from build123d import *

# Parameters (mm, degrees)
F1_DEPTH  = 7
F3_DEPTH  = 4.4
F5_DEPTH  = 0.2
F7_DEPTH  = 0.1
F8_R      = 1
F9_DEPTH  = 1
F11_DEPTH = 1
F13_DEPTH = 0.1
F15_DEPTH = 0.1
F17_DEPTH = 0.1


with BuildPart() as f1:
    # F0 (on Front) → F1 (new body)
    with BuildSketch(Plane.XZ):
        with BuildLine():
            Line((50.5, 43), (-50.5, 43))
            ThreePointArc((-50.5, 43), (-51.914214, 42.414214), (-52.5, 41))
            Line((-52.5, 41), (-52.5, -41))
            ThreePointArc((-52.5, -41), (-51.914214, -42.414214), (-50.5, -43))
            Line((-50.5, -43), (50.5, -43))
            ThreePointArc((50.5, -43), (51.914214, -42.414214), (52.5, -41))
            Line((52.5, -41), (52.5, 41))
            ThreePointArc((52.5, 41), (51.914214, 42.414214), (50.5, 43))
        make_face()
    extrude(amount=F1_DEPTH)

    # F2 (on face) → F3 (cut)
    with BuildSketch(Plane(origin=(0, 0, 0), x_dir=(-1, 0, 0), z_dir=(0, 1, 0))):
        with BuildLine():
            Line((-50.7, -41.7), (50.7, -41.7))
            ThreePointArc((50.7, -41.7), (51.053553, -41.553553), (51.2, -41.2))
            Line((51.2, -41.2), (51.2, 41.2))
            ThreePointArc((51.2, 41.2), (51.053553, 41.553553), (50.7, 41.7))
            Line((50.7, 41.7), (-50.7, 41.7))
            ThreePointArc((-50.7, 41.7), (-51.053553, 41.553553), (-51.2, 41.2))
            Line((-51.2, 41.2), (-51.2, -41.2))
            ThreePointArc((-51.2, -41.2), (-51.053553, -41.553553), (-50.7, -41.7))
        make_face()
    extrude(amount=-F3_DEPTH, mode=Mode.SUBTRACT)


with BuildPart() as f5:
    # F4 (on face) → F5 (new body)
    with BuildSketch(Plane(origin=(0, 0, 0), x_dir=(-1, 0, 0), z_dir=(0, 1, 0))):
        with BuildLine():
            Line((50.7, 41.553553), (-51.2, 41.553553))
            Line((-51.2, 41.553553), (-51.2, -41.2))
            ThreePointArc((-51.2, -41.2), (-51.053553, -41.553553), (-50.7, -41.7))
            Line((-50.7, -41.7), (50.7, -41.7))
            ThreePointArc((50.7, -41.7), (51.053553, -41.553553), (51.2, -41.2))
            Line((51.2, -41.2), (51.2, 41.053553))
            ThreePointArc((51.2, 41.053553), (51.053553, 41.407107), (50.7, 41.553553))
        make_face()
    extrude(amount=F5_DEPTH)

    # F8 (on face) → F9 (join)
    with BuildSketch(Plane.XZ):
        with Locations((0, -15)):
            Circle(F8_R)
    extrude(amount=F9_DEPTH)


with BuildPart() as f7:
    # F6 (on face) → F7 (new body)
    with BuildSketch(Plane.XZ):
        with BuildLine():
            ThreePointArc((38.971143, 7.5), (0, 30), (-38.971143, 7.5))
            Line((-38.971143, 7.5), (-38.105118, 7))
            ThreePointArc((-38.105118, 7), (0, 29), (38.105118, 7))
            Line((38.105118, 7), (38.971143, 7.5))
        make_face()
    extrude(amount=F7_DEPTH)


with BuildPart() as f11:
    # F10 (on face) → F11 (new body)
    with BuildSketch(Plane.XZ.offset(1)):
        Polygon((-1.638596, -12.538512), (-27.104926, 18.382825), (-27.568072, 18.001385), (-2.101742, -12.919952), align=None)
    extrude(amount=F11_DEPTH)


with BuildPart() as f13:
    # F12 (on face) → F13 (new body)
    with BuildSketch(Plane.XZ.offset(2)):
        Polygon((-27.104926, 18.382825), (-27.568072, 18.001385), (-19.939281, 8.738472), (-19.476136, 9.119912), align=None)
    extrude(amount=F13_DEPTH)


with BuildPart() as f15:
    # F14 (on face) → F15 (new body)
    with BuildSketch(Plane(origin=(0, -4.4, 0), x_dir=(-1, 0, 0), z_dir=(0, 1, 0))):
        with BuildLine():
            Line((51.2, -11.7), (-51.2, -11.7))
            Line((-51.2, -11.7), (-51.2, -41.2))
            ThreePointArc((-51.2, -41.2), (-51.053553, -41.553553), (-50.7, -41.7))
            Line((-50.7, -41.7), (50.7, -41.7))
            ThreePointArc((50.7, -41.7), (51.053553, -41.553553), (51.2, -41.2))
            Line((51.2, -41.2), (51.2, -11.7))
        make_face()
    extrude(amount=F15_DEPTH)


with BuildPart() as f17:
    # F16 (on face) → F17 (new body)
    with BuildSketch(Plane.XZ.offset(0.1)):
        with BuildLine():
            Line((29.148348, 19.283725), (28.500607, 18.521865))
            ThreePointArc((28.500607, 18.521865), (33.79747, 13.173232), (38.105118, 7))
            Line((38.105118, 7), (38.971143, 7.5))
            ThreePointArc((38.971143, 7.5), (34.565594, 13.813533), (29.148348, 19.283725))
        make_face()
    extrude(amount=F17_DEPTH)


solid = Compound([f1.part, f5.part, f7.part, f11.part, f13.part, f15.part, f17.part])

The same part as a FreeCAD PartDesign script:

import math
import FreeCAD as App
import Part
import Sketcher

V = App.Vector
Q = App.Units.Quantity

doc = App.newDocument("Part")
params = doc.addObject("Spreadsheet::Sheet", "Params")
for row, (alias, value) in enumerate([
    ("sketch1_radius", "1.999999 mm"),
    ("sketch1_width", "101 mm"),
    ("sketch1_height", "82 mm"),
    ("pad1_length", "7 mm"),
    ("sketch2_radius", "0.500001 mm"),
    ("sketch2_width", "101.4 mm"),
    ("sketch2_height", "82.4 mm"),
    ("pocket1_length", "4.4 mm"),
    ("sketch3_radius", "0.500001 mm"),
    ("sketch3_width", "101.9 mm"),
    ("sketch3_width2", "101.4 mm"),
    ("pad2_length", "0.2 mm"),
    ("sketch4_diameter", "2 mm"),
    ("pad3_length", "1 mm"),
    ("sketch5_radius", "45 mm"),
    ("sketch5_radius2", "44 mm"),
    ("pad4_length", "0.1 mm"),
    ("sketch6_length", "0.600001 mm"),
    ("pad5_length", "1 mm"),
    ("sketch7_length", "12 mm"),
    ("sketch7_length2", "0.600001 mm"),
    ("pad6_length", "0.1 mm"),
    ("sketch8_radius", "0.500001 mm"),
    ("sketch8_width", "102.4 mm"),
    ("sketch8_width2", "101.4 mm"),
    ("sketch8_height", "29.5 mm"),
    ("pad7_length", "0.1 mm"),
    ("sketch9_length", "1 mm"),
    ("pad8_length", "0.1 mm"),
], start=1):
    params.set(f"A{row}", alias)
    params.set(f"B{row}", "=" + value)
    params.setAlias(f"B{row}", alias)

body = doc.addObject("PartDesign::Body", "Body")

# Sketch on XZ plane
sketch1 = body.newObject("Sketcher::SketchObject", "Sketch")
sketch1.AttachmentSupport = (doc.getObject("XZ_Plane"), [""])
sketch1.MapMode = "FlatFace"
sketch1.addGeometry([
    Part.LineSegment(V(50.5, 43, 0), V(-50.5, 43, 0)),  # 0
    Part.ArcOfCircle(Part.Circle(V(-50.5, 41, 0), V(0, 0, 1), 2), math.radians(90), math.radians(180)),  # 1
    Part.LineSegment(V(-52.5, 41, 0), V(-52.5, -41, 0)),  # 2
    Part.ArcOfCircle(Part.Circle(V(-50.5, -41, 0), V(0, 0, 1), 2), math.radians(180), math.radians(270)),  # 3
    Part.LineSegment(V(-50.5, -43, 0), V(50.5, -43, 0)),  # 4
    Part.ArcOfCircle(Part.Circle(V(50.5, -41, 0), V(0, 0, 1), 2), math.radians(-90), math.radians(0)),  # 5
    Part.LineSegment(V(52.5, -41, 0), V(52.5, 41, 0)),  # 6
    Part.ArcOfCircle(Part.Circle(V(50.5, 41, 0), V(0, 0, 1), 2), math.radians(0), math.radians(90)),  # 7
], False)
sketch1.addConstraint([
    Sketcher.Constraint("Tangent", 0, 2, 1, 1),
    Sketcher.Constraint("Tangent", 1, 2, 2, 1),
    Sketcher.Constraint("Tangent", 2, 2, 3, 1),
    Sketcher.Constraint("Tangent", 3, 2, 4, 1),
    Sketcher.Constraint("Tangent", 4, 2, 5, 1),
    Sketcher.Constraint("Tangent", 5, 2, 6, 1),
    Sketcher.Constraint("Tangent", 6, 2, 7, 1),
    Sketcher.Constraint("Tangent", 7, 2, 0, 1),
    Sketcher.Constraint("Horizontal", 0),
    Sketcher.Constraint("Vertical", 2),
    Sketcher.Constraint("Horizontal", 4),
    Sketcher.Constraint("Vertical", 6),
    Sketcher.Constraint("Equal", 1, 3),
    Sketcher.Constraint("Equal", 3, 5),
    Sketcher.Constraint("Equal", 5, 7),
    Sketcher.Constraint("Symmetric", 1, 3, 5, 3, -1, 1),
    Sketcher.Constraint("Radius", 1, Q("1.999999 mm")),
    Sketcher.Constraint("DistanceX", 0, 2, 0, 1, Q("101 mm")),
    Sketcher.Constraint("DistanceY", 2, 2, 2, 1, Q("82 mm")),
])
sketch1.setExpression("Constraints[16]", "Params.sketch1_radius")
sketch1.setExpression("Constraints[17]", "Params.sketch1_width")
sketch1.setExpression("Constraints[18]", "Params.sketch1_height")
pad1 = body.newObject("PartDesign::Pad", "Pad")
pad1.Profile = sketch1
pad1.setExpression("Length", "Params.pad1_length")

# Sketch on XZ plane
sketch2 = body.newObject("Sketcher::SketchObject", "Sketch001")
sketch2.AttachmentSupport = (doc.getObject("XZ_Plane"), [""])
sketch2.MapMode = "FlatFace"
sketch2.addGeometry([
    Part.LineSegment(V(50.7, -41.7, 0), V(-50.7, -41.7, 0)),  # 0
    Part.ArcOfCircle(Part.Circle(V(-50.7, -41.2, 0), V(0, 0, 1), 0.5), math.radians(-180), math.radians(-90)),  # 1
    Part.LineSegment(V(-51.2, -41.2, 0), V(-51.2, 41.2, 0)),  # 2
    Part.ArcOfCircle(Part.Circle(V(-50.7, 41.2, 0), V(0, 0, 1), 0.5), math.radians(90), math.radians(180)),  # 3
    Part.LineSegment(V(-50.7, 41.7, 0), V(50.7, 41.7, 0)),  # 4
    Part.ArcOfCircle(Part.Circle(V(50.7, 41.2, 0), V(0, 0, 1), 0.5), math.radians(0), math.radians(90)),  # 5
    Part.LineSegment(V(51.2, 41.2, 0), V(51.2, -41.2, 0)),  # 6
    Part.ArcOfCircle(Part.Circle(V(50.7, -41.2, 0), V(0, 0, 1), 0.5), math.radians(-90), math.radians(0)),  # 7
], False)
sketch2.addConstraint([
    Sketcher.Constraint("Coincident", 0, 2, 1, 2),
    Sketcher.Constraint("Coincident", 1, 1, 2, 1),
    Sketcher.Constraint("Coincident", 2, 2, 3, 2),
    Sketcher.Constraint("Coincident", 3, 1, 4, 1),
    Sketcher.Constraint("Coincident", 4, 2, 5, 2),
    Sketcher.Constraint("Coincident", 5, 1, 6, 1),
    Sketcher.Constraint("Coincident", 6, 2, 7, 2),
    Sketcher.Constraint("Coincident", 7, 1, 0, 1),
    Sketcher.Constraint("Horizontal", 0),
    Sketcher.Constraint("Vertical", 2),
    Sketcher.Constraint("Horizontal", 4),
    Sketcher.Constraint("Vertical", 6),
    Sketcher.Constraint("Equal", 1, 3),
    Sketcher.Constraint("Equal", 3, 5),
    Sketcher.Constraint("Equal", 5, 7),
    Sketcher.Constraint("Symmetric", 1, 3, 5, 3, -1, 1),
    Sketcher.Constraint("Horizontal", 7, 3, 1, 1),
    Sketcher.Constraint("Horizontal", 5, 3, 2, 2),
    Sketcher.Constraint("Horizontal", 2, 2, 5, 1),
    Sketcher.Constraint("Horizontal", 1, 1, 6, 2),
    Sketcher.Constraint("Vertical", 3, 3, 0, 2),
    Sketcher.Constraint("Vertical", 0, 2, 3, 1),
    Sketcher.Constraint("Vertical", 7, 3, 4, 2),
    Sketcher.Constraint("Vertical", 4, 2, 7, 1),
    Sketcher.Constraint("Radius", 1, Q("0.500001 mm")),
    Sketcher.Constraint("DistanceX", 0, 2, 0, 1, Q("101.4 mm")),
    Sketcher.Constraint("DistanceY", 2, 1, 2, 2, Q("82.4 mm")),
])
sketch2.setExpression("Constraints[24]", "Params.sketch2_radius")
sketch2.setExpression("Constraints[25]", "Params.sketch2_width")
sketch2.setExpression("Constraints[26]", "Params.sketch2_height")
pocket1 = body.newObject("PartDesign::Pocket", "Pocket")
pocket1.Profile = sketch2
pocket1.setExpression("Length", "Params.pocket1_length")
pocket1.Reversed = True
body2 = doc.addObject("PartDesign::Body", "Body001")

# Sketch on XZ plane
sketch3 = body2.newObject("Sketcher::SketchObject", "Sketch002")
sketch3.AttachmentSupport = (doc.getObject("XZ_Plane001"), [""])
sketch3.MapMode = "FlatFace"
sketch3.addGeometry([
    Part.LineSegment(V(-50.7, 41.55, 0), V(51.2, 41.55, 0)),  # 0
    Part.LineSegment(V(51.2, 41.55, 0), V(51.2, -41.2, 0)),  # 1
    Part.ArcOfCircle(Part.Circle(V(50.7, -41.2, 0), V(0, 0, 1), 0.5), math.radians(-90), math.radians(0)),  # 2
    Part.LineSegment(V(50.7, -41.7, 0), V(-50.7, -41.7, 0)),  # 3
    Part.ArcOfCircle(Part.Circle(V(-50.7, -41.2, 0), V(0, 0, 1), 0.5), math.radians(-180), math.radians(-90)),  # 4
    Part.LineSegment(V(-51.2, -41.2, 0), V(-51.2, 41.05, 0)),  # 5
    Part.ArcOfCircle(Part.Circle(V(-50.7, 41.05, 0), V(0, 0, 1), 0.5), math.radians(90), math.radians(180)),  # 6
], False)
sketch3.addConstraint([
    Sketcher.Constraint("Coincident", 0, 2, 1, 1),
    Sketcher.Constraint("Coincident", 1, 2, 2, 2),
    Sketcher.Constraint("Coincident", 2, 1, 3, 1),
    Sketcher.Constraint("Coincident", 3, 2, 4, 2),
    Sketcher.Constraint("Coincident", 4, 1, 5, 1),
    Sketcher.Constraint("Tangent", 5, 2, 6, 2),
    Sketcher.Constraint("Tangent", 6, 1, 0, 1),
    Sketcher.Constraint("Horizontal", 0),
    Sketcher.Constraint("Vertical", 1),
    Sketcher.Constraint("Horizontal", 3),
    Sketcher.Constraint("Vertical", 5),
    Sketcher.Constraint("Equal", 2, 4),
    Sketcher.Constraint("Equal", 4, 6),
    Sketcher.Constraint("Symmetric", 1, 2, 4, 1, -2),
    Sketcher.Constraint("Horizontal", 4, 3, 1, 2),
    Sketcher.Constraint("Vertical", 6, 3, 3, 2),
    Sketcher.Constraint("Radius", 2, Q("0.500001 mm")),
    Sketcher.Constraint("DistanceX", 0, 1, 0, 2, Q("101.9 mm")),
    Sketcher.Constraint("DistanceX", 3, 2, 3, 1, Q("101.4 mm")),
    Sketcher.Constraint("DistanceY", 2, 3, -1, 1, Q("41.199999 mm")),
    Sketcher.Constraint("DistanceY", 1, 2, 1, 1, Q("82.753553 mm")),
])
sketch3.setExpression("Constraints[16]", "Params.sketch3_radius")
sketch3.setExpression("Constraints[17]", "Params.sketch3_width")
sketch3.setExpression("Constraints[18]", "Params.sketch3_width2")
pad2 = body2.newObject("PartDesign::Pad", "Pad001")
pad2.Profile = sketch3
pad2.setExpression("Length", "Params.pad2_length")
pad2.Reversed = True

# Sketch on XZ plane
sketch4 = body2.newObject("Sketcher::SketchObject", "Sketch003")
sketch4.AttachmentSupport = (doc.getObject("XZ_Plane001"), [""])
sketch4.MapMode = "FlatFace"
sketch4.addGeometry(Part.Circle(V(0, -15, 0), V(0, 0, 1), 1), False)
sketch4.addConstraint([
    Sketcher.Constraint("PointOnObject", 0, 3, -2),
    Sketcher.Constraint("Diameter", 0, Q("2 mm")),
    Sketcher.Constraint("DistanceY", 0, 3, -1, 1, Q("15 mm")),
])
sketch4.setExpression("Constraints[1]", "Params.sketch4_diameter")
pad3 = body2.newObject("PartDesign::Pad", "Pad002")
pad3.Profile = sketch4
pad3.setExpression("Length", "Params.pad3_length")
body3 = doc.addObject("PartDesign::Body", "Body002")

# Sketch on XZ plane
sketch5 = body3.newObject("Sketcher::SketchObject", "Sketch004")
sketch5.AttachmentSupport = (doc.getObject("XZ_Plane002"), [""])
sketch5.MapMode = "FlatFace"
sketch5.addGeometry([
    Part.ArcOfCircle(Part.Circle(V(0, -15, 0), V(0, 0, 1), 45), math.radians(30), math.radians(150)),
    Part.LineSegment(V(-39, 7.5, 0), V(-38.1, 7, 0)),
    Part.ArcOfCircle(Part.Circle(V(0, -15, 0), V(0, 0, 1), 44), math.radians(30), math.radians(150)),
    Part.LineSegment(V(38.1, 7, 0), V(39, 7.5, 0)),
], False)
sketch5.addConstraint([
    Sketcher.Constraint("Coincident", 0, 2, 1, 1),
    Sketcher.Constraint("Coincident", 1, 2, 2, 2),
    Sketcher.Constraint("Coincident", 2, 1, 3, 1),
    Sketcher.Constraint("Coincident", 3, 2, 0, 1),
    Sketcher.Constraint("Coincident", 2, 3, 0, 3),
    Sketcher.Constraint("Symmetric", 1, 2, 2, 1, -2),
    Sketcher.Constraint("Horizontal", 0, 2, 3, 2),
    Sketcher.Constraint("Radius", 0, Q("45 mm")),
    Sketcher.Constraint("Radius", 2, Q("44 mm")),
    Sketcher.Constraint("Angle", 1, Q("-30.000012 deg")),
    Sketcher.Constraint("DistanceY", 0, 3, -1, 1, Q("15 mm")),
    Sketcher.Constraint("DistanceY", -1, 1, 1, 2, Q("7 mm")),
])
sketch5.setExpression("Constraints[7]", "Params.sketch5_radius")
sketch5.setExpression("Constraints[8]", "Params.sketch5_radius2")
pad4 = body3.newObject("PartDesign::Pad", "Pad003")
pad4.Profile = sketch5
pad4.setExpression("Length", "Params.pad4_length")
body4 = doc.addObject("PartDesign::Body", "Body003")

# Sketch on XZ plane
sketch6 = body4.newObject("Sketcher::SketchObject", "Sketch005")
sketch6.AttachmentSupport = (doc.getObject("XZ_Plane003"), [""])
sketch6.MapMode = "FlatFace"
sketch6.AttachmentOffset = App.Placement(V(0, 0, 1), App.Rotation())
sketch6.addGeometry([
    Part.LineSegment(V(-1.638596, -12.538512, 0), V(-27.104926, 18.382825, 0)),
    Part.LineSegment(V(-27.104926, 18.382825, 0), V(-27.568072, 18.001385, 0)),
    Part.LineSegment(V(-27.568072, 18.001385, 0), V(-2.101742, -12.919952, 0)),
    Part.LineSegment(V(-2.101742, -12.919952, 0), V(-1.638596, -12.538512, 0)),
], False)
sketch6.addConstraint([
    Sketcher.Constraint("Coincident", 0, 2, 1, 1),
    Sketcher.Constraint("Coincident", 1, 2, 2, 1),
    Sketcher.Constraint("Coincident", 2, 2, 3, 1),
    Sketcher.Constraint("Coincident", 3, 2, 0, 1),
    Sketcher.Constraint("Perpendicular", 0, 1),
    Sketcher.Constraint("Perpendicular", 1, 2),
    Sketcher.Constraint("Perpendicular", 2, 3),
    Sketcher.Constraint("Distance", 1, Q("0.600001 mm")),
    Sketcher.Constraint("DistanceY", 1, 2, 0, 2, Q("0.38144 mm")),
    Sketcher.Constraint("DistanceX", 1, 2, 2, 2, Q("25.46633 mm")),
    Sketcher.Constraint("DistanceX", 0, 2, -1, 1, Q("27.104926 mm")),
    Sketcher.Constraint("DistanceY", -1, 1, 0, 2, Q("18.382825 mm")),
])
sketch6.setExpression("Constraints[7]", "Params.sketch6_length")
pad5 = body4.newObject("PartDesign::Pad", "Pad004")
pad5.Profile = sketch6
pad5.setExpression("Length", "Params.pad5_length")
body5 = doc.addObject("PartDesign::Body", "Body004")

# Sketch on XZ plane
sketch7 = body5.newObject("Sketcher::SketchObject", "Sketch006")
sketch7.AttachmentSupport = (doc.getObject("XZ_Plane004"), [""])
sketch7.MapMode = "FlatFace"
sketch7.AttachmentOffset = App.Placement(V(0, 0, 2), App.Rotation())
sketch7.addGeometry([
    Part.LineSegment(V(-27.1, 18.4, 0), V(-27.6, 18, 0)),
    Part.LineSegment(V(-27.6, 18, 0), V(-19.9, 8.7, 0)),
    Part.LineSegment(V(-19.9, 8.7, 0), V(-19.5, 9.1, 0)),
    Part.LineSegment(V(-19.5, 9.1, 0), V(-27.1, 18.4, 0)),
], False)
sketch7.addConstraint([
    Sketcher.Constraint("Coincident", 0, 2, 1, 1),
    Sketcher.Constraint("Coincident", 1, 2, 2, 1),
    Sketcher.Constraint("Coincident", 2, 2, 3, 1),
    Sketcher.Constraint("Coincident", 3, 2, 0, 1),
    Sketcher.Constraint("Perpendicular", 0, 1),
    Sketcher.Constraint("Perpendicular", 1, 2),
    Sketcher.Constraint("Perpendicular", 2, 3),
    Sketcher.Constraint("Distance", 1, Q("12 mm")),
    Sketcher.Constraint("Distance", 0, Q("0.600001 mm")),
    Sketcher.Constraint("DistanceX", 1, 2, -1, 1, Q("19.939281 mm")),
    Sketcher.Constraint("DistanceY", -1, 1, 2, 2, Q("9.119912 mm")),
    Sketcher.Constraint("DistanceX", 0, 2, 1, 2, Q("7.628791 mm")),
])
sketch7.setExpression("Constraints[7]", "Params.sketch7_length")
sketch7.setExpression("Constraints[8]", "Params.sketch7_length2")
pad6 = body5.newObject("PartDesign::Pad", "Pad005")
pad6.Profile = sketch7
pad6.setExpression("Length", "Params.pad6_length")
body6 = doc.addObject("PartDesign::Body", "Body005")

# Sketch on XZ plane
sketch8 = body6.newObject("Sketcher::SketchObject", "Sketch007")
sketch8.AttachmentSupport = (doc.getObject("XZ_Plane005"), [""])
sketch8.MapMode = "FlatFace"
sketch8.AttachmentOffset = App.Placement(V(0, 0, 4.4), App.Rotation())
sketch8.addGeometry([
    Part.LineSegment(V(-51.2, -11.7, 0), V(51.2, -11.7, 0)),  # 0
    Part.LineSegment(V(51.2, -11.7, 0), V(51.2, -41.2, 0)),  # 1
    Part.ArcOfCircle(Part.Circle(V(50.7, -41.2, 0), V(0, 0, 1), 0.5), math.radians(-90), math.radians(0)),  # 2
    Part.LineSegment(V(50.7, -41.7, 0), V(-50.7, -41.7, 0)),  # 3
    Part.ArcOfCircle(Part.Circle(V(-50.7, -41.2, 0), V(0, 0, 1), 0.5), math.radians(-180), math.radians(-90)),  # 4
    Part.LineSegment(V(-51.2, -41.2, 0), V(-51.2, -11.7, 0)),  # 5
], False)
sketch8.addConstraint([
    Sketcher.Constraint("Coincident", 0, 2, 1, 1),
    Sketcher.Constraint("Coincident", 1, 2, 2, 2),
    Sketcher.Constraint("Coincident", 2, 1, 3, 1),
    Sketcher.Constraint("Coincident", 3, 2, 4, 2),
    Sketcher.Constraint("Coincident", 4, 1, 5, 1),
    Sketcher.Constraint("Coincident", 5, 2, 0, 1),
    Sketcher.Constraint("Horizontal", 0),
    Sketcher.Constraint("Vertical", 1),
    Sketcher.Constraint("Horizontal", 3),
    Sketcher.Constraint("Vertical", 5),
    Sketcher.Constraint("Equal", 2, 4),
    Sketcher.Constraint("Symmetric", 1, 2, 4, 1, -2),
    Sketcher.Constraint("Horizontal", 4, 3, 1, 2),
    Sketcher.Constraint("Vertical", 4, 3, 3, 2),
    Sketcher.Constraint("Radius", 2, Q("0.500001 mm")),
    Sketcher.Constraint("DistanceX", 0, 1, 0, 2, Q("102.4 mm")),
    Sketcher.Constraint("DistanceX", 3, 2, 3, 1, Q("101.4 mm")),
    Sketcher.Constraint("DistanceY", 1, 2, 1, 1, Q("29.5 mm")),
    Sketcher.Constraint("DistanceY", 2, 3, -1, 1, Q("41.199999 mm")),
])
sketch8.setExpression("Constraints[14]", "Params.sketch8_radius")
sketch8.setExpression("Constraints[15]", "Params.sketch8_width")
sketch8.setExpression("Constraints[16]", "Params.sketch8_width2")
sketch8.setExpression("Constraints[17]", "Params.sketch8_height")
pad7 = body6.newObject("PartDesign::Pad", "Pad006")
pad7.Profile = sketch8
pad7.setExpression("Length", "Params.pad7_length")
pad7.Reversed = True
body7 = doc.addObject("PartDesign::Body", "Body006")

# Sketch on XZ plane
sketch9 = body7.newObject("Sketcher::SketchObject", "Sketch008")
sketch9.AttachmentSupport = (doc.getObject("XZ_Plane006"), [""])
sketch9.MapMode = "FlatFace"
sketch9.AttachmentOffset = App.Placement(V(0, 0, 0.1), App.Rotation())
sketch9.addGeometry([
    Part.LineSegment(V(29.1, 19.3, 0), V(28.5, 18.5, 0)),
    Part.ArcOfCircle(Part.Circle(V(0, -15, 0), V(0, 0, 1), 44), math.radians(30), math.radians(49.63)),
    Part.LineSegment(V(38.1, 7, 0), V(39, 7.5, 0)),
    Part.ArcOfCircle(Part.Circle(V(0, -15, 0), V(0, 0, 1), 45), math.radians(30), math.radians(49.63)),
], False)
sketch9.addConstraint([
    Sketcher.Constraint("Coincident", 0, 2, 1, 2),
    Sketcher.Constraint("Coincident", 1, 1, 2, 1),
    Sketcher.Constraint("Coincident", 2, 2, 3, 1),
    Sketcher.Constraint("Coincident", 3, 2, 0, 1),
    Sketcher.Constraint("Equal", 0, 2),
    Sketcher.Constraint("Angle", 2, Q("30.000012 deg")),
    Sketcher.Constraint("Distance", 0, Q("1 mm")),
    Sketcher.Constraint("DistanceY", -1, 1, 1, 1, Q("7 mm")),
    Sketcher.Constraint("Radius", 1, Q("44.000035 mm")),
    Sketcher.Constraint("Radius", 3, Q("45.000012 mm")),
    Sketcher.Constraint("DistanceX", -1, 1, 1, 1, Q("38.105118 mm")),
    Sketcher.Constraint("DistanceX", 0, 2, 1, 1, Q("9.604511 mm")),
    Sketcher.Constraint("DistanceX", 1, 3, 2, 2, Q("38.97117 mm")),
    Sketcher.Constraint("DistanceX", 0, 2, 3, 2, Q("0.647741 mm")),
])
sketch9.setExpression("Constraints[6]", "Params.sketch9_length")
pad8 = body7.newObject("PartDesign::Pad", "Pad007")
pad8.Profile = sketch9
pad8.setExpression("Length", "Params.pad8_length")

doc.recompute()
